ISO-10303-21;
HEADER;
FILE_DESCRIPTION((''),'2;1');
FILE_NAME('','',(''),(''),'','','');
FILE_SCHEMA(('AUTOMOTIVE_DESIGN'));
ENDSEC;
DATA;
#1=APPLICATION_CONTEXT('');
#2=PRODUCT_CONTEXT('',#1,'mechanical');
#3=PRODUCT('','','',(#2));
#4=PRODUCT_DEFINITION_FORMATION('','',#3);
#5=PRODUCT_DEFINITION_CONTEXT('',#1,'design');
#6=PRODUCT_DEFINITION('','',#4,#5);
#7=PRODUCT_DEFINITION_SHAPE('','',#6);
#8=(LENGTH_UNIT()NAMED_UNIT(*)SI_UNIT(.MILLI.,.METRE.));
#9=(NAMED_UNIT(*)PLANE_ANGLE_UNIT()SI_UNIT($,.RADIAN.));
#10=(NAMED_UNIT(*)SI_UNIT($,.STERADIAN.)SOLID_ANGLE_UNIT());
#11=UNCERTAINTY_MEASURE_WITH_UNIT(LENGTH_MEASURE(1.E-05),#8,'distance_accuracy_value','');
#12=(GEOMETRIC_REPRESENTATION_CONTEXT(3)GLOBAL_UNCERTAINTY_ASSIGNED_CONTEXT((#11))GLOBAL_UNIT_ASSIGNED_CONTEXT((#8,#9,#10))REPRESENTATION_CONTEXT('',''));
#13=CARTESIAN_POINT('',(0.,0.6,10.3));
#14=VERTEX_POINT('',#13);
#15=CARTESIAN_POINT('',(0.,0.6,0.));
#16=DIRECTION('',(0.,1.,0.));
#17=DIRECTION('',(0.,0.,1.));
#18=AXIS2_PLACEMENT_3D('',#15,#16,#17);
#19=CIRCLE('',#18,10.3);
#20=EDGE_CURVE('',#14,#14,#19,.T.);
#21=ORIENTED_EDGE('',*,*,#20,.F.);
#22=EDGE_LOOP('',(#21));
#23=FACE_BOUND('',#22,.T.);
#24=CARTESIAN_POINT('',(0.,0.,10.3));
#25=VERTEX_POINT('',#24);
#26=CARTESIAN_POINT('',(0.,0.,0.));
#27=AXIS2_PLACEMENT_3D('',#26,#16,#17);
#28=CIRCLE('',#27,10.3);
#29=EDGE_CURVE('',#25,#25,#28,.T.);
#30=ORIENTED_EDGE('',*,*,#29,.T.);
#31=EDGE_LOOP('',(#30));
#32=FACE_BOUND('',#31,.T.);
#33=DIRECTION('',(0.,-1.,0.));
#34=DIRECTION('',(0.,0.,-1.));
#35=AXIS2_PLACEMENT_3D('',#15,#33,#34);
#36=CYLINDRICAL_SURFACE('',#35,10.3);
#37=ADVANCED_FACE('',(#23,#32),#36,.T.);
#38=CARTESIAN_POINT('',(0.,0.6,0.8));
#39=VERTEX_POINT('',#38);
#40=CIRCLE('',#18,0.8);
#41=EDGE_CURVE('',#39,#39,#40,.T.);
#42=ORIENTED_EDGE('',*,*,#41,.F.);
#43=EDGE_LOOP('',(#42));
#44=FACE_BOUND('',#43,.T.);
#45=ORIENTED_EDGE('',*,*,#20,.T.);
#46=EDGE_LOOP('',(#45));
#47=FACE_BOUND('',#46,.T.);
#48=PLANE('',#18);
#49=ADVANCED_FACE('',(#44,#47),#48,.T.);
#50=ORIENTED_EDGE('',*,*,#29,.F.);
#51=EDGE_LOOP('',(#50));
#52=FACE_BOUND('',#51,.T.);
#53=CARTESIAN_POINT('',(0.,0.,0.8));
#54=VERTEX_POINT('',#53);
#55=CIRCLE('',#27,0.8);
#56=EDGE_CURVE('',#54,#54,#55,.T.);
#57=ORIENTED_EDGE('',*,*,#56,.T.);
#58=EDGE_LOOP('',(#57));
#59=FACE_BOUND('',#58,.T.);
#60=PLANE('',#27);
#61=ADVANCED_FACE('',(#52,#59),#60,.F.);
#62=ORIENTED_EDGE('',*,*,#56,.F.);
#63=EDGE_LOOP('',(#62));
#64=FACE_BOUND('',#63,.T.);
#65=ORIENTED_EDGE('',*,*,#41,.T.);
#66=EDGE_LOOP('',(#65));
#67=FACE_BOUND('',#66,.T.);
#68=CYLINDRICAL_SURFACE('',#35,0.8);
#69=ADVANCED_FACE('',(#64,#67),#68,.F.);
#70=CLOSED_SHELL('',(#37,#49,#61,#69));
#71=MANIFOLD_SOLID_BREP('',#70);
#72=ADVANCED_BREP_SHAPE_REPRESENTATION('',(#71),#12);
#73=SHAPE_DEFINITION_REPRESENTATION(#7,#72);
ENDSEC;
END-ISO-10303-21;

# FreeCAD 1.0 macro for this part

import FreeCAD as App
import Part
import Sketcher
from FreeCAD import Vector
Q = App.Units.Quantity

doc = App.newDocument("Part")
params = doc.addObject("Spreadsheet::Sheet", "Params")
for row, (alias, value) in enumerate([
    ("sketch1_diameter", "20.6 mm"),
    ("sketch1_diameter2", "1.6 mm"),
    ("pad1_length", "0.6 mm"),
], start=1):
    params.set(f"A{row}", alias)
    params.set(f"B{row}", "=" + value)
    params.setAlias(f"B{row}", alias)

body = doc.addObject("PartDesign::Body", "Body")

sketch1 = body.newObject("Sketcher::SketchObject", "Sketch")
sketch1.AttachmentSupport = (doc.getObject("XZ_Plane"), [""])
sketch1.MapMode = "FlatFace"
sketch1.addGeometry([
    Part.Circle(Vector(0, 0, 0), Vector(0, 0, 1), 10.3),
    Part.Circle(Vector(0, 0, 0), Vector(0, 0, 1), 0.8),
], False)
sketch1.addConstraint([
    Sketcher.Constraint("Coincident", 0, 3, -1, 1),
    Sketcher.Constraint("Coincident", 1, 3, -1, 1),
    Sketcher.Constraint("Diameter", 0, Q("20.6 mm")),
    Sketcher.Constraint("Diameter", 1, Q("1.6 mm")),
])
sketch1.setExpression("Constraints[2]", "Params.sketch1_diameter")
sketch1.setExpression("Constraints[3]", "Params.sketch1_diameter2")
pad1 = body.newObject("PartDesign::Pad", "Pad")
pad1.Profile = sketch1
pad1.setExpression("Length", "Params.pad1_length")
pad1.Reversed = True

doc.recompute()
